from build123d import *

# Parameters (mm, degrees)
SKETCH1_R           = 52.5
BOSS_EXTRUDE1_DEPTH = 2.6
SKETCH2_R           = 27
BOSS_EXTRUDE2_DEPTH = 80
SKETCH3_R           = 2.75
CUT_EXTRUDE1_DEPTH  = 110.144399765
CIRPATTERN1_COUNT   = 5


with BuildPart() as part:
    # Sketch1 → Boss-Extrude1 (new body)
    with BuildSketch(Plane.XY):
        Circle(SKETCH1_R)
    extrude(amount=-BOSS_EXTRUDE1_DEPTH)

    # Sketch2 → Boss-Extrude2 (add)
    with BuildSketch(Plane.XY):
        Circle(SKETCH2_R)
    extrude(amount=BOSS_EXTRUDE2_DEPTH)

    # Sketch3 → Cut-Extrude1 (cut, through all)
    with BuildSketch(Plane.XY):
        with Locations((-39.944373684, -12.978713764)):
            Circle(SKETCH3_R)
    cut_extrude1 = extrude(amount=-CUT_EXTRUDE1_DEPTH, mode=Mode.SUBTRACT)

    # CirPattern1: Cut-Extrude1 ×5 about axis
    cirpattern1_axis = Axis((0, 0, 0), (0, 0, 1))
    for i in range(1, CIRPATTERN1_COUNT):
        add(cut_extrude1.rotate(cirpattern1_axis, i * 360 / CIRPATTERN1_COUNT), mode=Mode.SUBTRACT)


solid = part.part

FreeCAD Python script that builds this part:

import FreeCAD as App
import Part
import Sketcher

V = App.Vector
Q = App.Units.Quantity

doc = App.newDocument("Part")
params = doc.addObject("Spreadsheet::Sheet", "Params")
for row, (alias, value) in enumerate([
    ("sketch1_diameter", "105 mm"),
    ("pad1_length", "2.6 mm"),
    ("sketch2_diameter", "54 mm"),
    ("pad2_length", "80 mm"),
    ("sketch3_diameter", "5.5 mm"),
], start=1):
    params.set(f"A{row}", alias)
    params.set(f"B{row}", "=" + value)
    params.setAlias(f"B{row}", alias)

body = doc.addObject("PartDesign::Body", "Body")

sketch1 = body.newObject("Sketcher::SketchObject", "Sketch")
sketch1.AttachmentSupport = (doc.getObject("XY_Plane"), [""])
sketch1.MapMode = "FlatFace"
sketch1.addGeometry(Part.Circle(V(0, 0, 0), V(0, 0, 1), 52), False)
sketch1.addConstraint(Sketcher.Constraint("Coincident", 0, 3, -1, 1))
sketch1.addConstraint(Sketcher.Constraint("Diameter", 0, Q("105 mm")))
sketch1.setExpression("Constraints[1]", "Params.sketch1_diameter")
pad1 = body.newObject("PartDesign::Pad", "Pad")
pad1.Profile = sketch1
pad1.setExpression("Length", "Params.pad1_length")
pad1.Reversed = True

sketch2 = body.newObject("Sketcher::SketchObject", "Sketch001")
sketch2.AttachmentSupport = (doc.getObject("XY_Plane"), [""])
sketch2.MapMode = "FlatFace"
sketch2.addGeometry(Part.Circle(V(0, 0, 0), V(0, 0, 1), 27), False)
sketch2.addConstraint(Sketcher.Constraint("Coincident", 0, 3, -1, 1))
sketch2.addConstraint(Sketcher.Constraint("Diameter", 0, Q("54 mm")))
sketch2.setExpression("Constraints[1]", "Params.sketch2_diameter")
pad2 = body.newObject("PartDesign::Pad", "Pad001")
pad2.Profile = sketch2
pad2.setExpression("Length", "Params.pad2_length")

sketch3 = body.newObject("Sketcher::SketchObject", "Sketch002")
sketch3.AttachmentSupport = (doc.getObject("XY_Plane"), [""])
sketch3.MapMode = "FlatFace"
sketch3.addGeometry(Part.Circle(V(-39.9, -13, 0), V(0, 0, 1), 2.8), False)
sketch3.addConstraint(Sketcher.Constraint("Diameter", 0, Q("5.5 mm")))
sketch3.addConstraint(Sketcher.Constraint("DistanceX", 0, 3, -1, 1, Q("39.944374 mm")))
sketch3.addConstraint(Sketcher.Constraint("DistanceY", 0, 3, -1, 1, Q("12.978714 mm")))
sketch3.setExpression("Constraints[0]", "Params.sketch3_diameter")
pocket1 = body.newObject("PartDesign::Pocket", "Pocket")
pocket1.Profile = sketch3
pocket1.Type = "ThroughAll"
doc.recompute()

polarpattern = body.newObject("PartDesign::PolarPattern", "PolarPattern")
polarpattern.Originals = [pocket1]
polarpattern.Axis = (doc.getObject("Z_Axis"), [""])
polarpattern.Angle = 360
polarpattern.Occurrences = 5
body.Tip = polarpattern

doc.recompute()
